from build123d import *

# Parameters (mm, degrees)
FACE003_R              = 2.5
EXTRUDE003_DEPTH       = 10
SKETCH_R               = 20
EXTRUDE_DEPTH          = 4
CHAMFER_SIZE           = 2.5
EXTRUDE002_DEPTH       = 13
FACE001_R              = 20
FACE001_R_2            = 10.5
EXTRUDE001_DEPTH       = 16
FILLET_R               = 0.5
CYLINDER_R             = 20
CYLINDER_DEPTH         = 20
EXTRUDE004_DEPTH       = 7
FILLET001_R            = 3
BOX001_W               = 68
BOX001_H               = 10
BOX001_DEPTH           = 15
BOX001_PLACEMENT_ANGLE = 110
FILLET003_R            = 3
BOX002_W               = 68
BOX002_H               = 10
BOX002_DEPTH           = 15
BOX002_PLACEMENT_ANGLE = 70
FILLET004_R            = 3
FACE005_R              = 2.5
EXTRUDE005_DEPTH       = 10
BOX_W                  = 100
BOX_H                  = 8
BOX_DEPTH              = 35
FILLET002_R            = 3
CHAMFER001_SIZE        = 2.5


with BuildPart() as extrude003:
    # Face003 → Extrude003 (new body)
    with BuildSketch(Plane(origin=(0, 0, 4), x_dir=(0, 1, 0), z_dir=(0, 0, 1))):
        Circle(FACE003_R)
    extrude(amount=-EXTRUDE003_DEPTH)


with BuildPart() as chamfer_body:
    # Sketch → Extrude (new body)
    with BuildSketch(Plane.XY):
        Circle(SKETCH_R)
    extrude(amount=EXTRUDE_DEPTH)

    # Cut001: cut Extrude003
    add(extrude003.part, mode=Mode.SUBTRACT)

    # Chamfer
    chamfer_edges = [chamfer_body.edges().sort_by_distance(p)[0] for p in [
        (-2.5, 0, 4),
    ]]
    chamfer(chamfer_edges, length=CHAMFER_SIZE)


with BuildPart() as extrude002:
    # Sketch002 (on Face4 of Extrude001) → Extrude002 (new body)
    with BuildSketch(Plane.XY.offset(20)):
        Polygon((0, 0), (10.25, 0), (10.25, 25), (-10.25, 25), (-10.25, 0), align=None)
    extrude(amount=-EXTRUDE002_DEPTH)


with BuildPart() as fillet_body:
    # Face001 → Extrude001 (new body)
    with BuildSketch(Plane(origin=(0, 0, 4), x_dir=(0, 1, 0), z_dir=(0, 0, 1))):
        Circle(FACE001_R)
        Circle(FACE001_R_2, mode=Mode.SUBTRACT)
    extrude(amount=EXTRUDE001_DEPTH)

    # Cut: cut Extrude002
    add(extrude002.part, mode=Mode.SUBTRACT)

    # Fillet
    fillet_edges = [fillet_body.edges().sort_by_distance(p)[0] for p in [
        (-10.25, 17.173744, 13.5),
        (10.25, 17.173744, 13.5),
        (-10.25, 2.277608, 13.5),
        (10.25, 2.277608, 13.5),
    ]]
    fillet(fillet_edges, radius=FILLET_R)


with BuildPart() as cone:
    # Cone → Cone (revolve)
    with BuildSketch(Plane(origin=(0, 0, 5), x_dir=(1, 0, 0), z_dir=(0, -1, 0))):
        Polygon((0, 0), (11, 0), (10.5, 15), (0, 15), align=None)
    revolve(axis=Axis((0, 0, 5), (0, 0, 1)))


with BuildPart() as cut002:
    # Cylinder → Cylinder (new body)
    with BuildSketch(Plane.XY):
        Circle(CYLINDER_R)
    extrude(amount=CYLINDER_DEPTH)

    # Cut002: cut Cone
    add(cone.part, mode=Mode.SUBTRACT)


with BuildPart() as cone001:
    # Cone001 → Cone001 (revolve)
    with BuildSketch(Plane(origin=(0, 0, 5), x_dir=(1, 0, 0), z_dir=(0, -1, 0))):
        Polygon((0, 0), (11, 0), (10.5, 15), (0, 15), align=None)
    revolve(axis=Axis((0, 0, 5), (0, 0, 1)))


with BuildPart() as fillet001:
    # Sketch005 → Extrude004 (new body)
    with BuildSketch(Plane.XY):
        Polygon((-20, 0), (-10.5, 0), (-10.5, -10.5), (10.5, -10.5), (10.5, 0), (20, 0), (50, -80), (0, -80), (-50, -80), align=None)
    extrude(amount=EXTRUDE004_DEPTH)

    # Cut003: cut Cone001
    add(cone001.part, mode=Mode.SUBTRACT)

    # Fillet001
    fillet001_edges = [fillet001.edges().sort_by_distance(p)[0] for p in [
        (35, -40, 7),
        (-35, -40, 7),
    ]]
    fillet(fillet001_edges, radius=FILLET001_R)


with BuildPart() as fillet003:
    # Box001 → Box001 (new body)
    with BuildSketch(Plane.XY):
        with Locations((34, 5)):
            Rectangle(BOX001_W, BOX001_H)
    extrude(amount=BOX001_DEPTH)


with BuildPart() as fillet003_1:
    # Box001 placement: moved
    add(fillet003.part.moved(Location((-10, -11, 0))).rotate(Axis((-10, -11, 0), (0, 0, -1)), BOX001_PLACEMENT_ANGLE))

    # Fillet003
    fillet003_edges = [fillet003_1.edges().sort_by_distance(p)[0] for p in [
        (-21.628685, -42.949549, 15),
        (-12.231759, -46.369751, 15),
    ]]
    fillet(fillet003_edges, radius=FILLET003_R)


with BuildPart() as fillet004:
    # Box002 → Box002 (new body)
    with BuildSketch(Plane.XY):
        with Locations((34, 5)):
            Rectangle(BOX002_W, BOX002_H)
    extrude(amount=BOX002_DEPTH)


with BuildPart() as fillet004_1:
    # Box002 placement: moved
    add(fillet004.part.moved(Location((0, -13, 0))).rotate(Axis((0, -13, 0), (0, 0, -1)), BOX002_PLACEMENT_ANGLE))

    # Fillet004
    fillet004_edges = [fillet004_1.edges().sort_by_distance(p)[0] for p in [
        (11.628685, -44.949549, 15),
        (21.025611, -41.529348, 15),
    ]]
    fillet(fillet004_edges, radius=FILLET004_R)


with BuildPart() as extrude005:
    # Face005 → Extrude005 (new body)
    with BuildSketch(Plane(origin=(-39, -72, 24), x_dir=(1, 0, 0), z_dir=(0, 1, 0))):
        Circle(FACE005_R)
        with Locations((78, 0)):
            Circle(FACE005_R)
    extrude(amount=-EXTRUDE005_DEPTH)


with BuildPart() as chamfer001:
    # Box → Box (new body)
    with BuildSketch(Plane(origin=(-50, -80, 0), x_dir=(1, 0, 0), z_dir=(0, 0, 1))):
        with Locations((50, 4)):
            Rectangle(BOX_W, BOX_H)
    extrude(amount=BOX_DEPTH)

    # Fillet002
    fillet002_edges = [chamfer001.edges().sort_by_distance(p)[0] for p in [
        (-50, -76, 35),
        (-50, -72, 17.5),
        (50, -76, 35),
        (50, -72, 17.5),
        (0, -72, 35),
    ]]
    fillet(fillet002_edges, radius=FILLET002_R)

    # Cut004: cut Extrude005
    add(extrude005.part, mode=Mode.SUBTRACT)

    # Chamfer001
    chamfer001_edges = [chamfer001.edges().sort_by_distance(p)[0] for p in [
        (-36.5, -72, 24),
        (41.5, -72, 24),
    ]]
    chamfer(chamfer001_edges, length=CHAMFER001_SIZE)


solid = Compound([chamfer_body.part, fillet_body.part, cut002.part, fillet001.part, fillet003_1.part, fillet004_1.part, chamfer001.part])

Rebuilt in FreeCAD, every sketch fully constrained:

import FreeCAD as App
import Part
import Sketcher
Q = App.Units.Quantity


def edges_at(feature, points):
    """Names of the edges that pass closest to the given points."""
    edges = feature.Shape.Edges
    near = lambda p: min(range(len(edges)), key=lambda i: edges[i].distToShape(Part.Vertex(*p))[0])
    return sorted({f"Edge{near(p) + 1}" for p in points})


def add_polygon(sketch, points):
    """Adds a closed chain of lines whose ends are joined by coincident constraints."""
    first, n = sketch.GeometryCount, len(points)
    for a, b in zip(points, points[1:] + points[:1]):
        sketch.addGeometry(Part.LineSegment(App.Vector(*a, 0), App.Vector(*b, 0)), False)
    for i in range(n):
        sketch.addConstraint(Sketcher.Constraint("Coincident", first + i, 2, first + (i + 1) % n, 1))

doc = App.newDocument("Part")
body = doc.addObject("PartDesign::Body", "Body")

# Sketch on XY plane
sketch1 = body.newObject("Sketcher::SketchObject", "Sketch")
sketch1.AttachmentSupport = (doc.getObject("XY_Plane"), [""])
sketch1.MapMode = "FlatFace"
sketch1.AttachmentOffset = App.Placement(App.Vector(0, 0, 4), App.Rotation())
sketch1.addGeometry(Part.Circle(App.Vector(0, 0, 0), App.Vector(0, 0, 1), 2.5), False)
sketch1.addConstraint([
    Sketcher.Constraint("Coincident", 0, 3, -1, 1),
    Sketcher.Constraint("Diameter", 0, Q("5 mm")),
])
pad1 = body.newObject("PartDesign::Pad", "Pad")
pad1.Profile = sketch1
pad1.Length = 10
pad1.Reversed = True
body2 = doc.addObject("PartDesign::Body", "Body001")

# Sketch on XY plane
sketch2 = body2.newObject("Sketcher::SketchObject", "Sketch001")
sketch2.AttachmentSupport = (doc.getObject("XY_Plane001"), [""])
sketch2.MapMode = "FlatFace"
sketch2.addGeometry(Part.Circle(App.Vector(0, 0, 0), App.Vector(0, 0, 1), 20), False)
sketch2.addConstraint([
    Sketcher.Constraint("Coincident", 0, 3, -1, 1),
    Sketcher.Constraint("Diameter", 0, Q("40 mm")),
])
pad2 = body2.newObject("PartDesign::Pad", "Pad001")
pad2.Profile = sketch2
pad2.Length = 4
doc.recompute()

boolean = body2.newObject("PartDesign::Boolean", "Boolean")
boolean.Type = "Cut"
boolean.addObjects([body])
doc.recompute()

chamfer = body2.newObject("PartDesign::Chamfer", "Chamfer")
chamfer.Base = (boolean, edges_at(boolean, [(0, -2.5, 4)]))
chamfer.Size = 2.5
body3 = doc.addObject("PartDesign::Body", "Body002")

# Sketch on XY plane
sketch3 = body3.newObject("Sketcher::SketchObject", "Sketch002")
sketch3.AttachmentSupport = (doc.getObject("XY_Plane002"), [""])
sketch3.MapMode = "FlatFace"
sketch3.AttachmentOffset = App.Placement(App.Vector(0, 0, 20), App.Rotation())
add_polygon(sketch3, [(10, 0), (10, 25), (-10, 25), (-10, 0)])  # lines 0-3
sketch3.addConstraint([
    Sketcher.Constraint("Vertical", 0),
    Sketcher.Constraint("Horizontal", 1),
    Sketcher.Constraint("Vertical", 2),
    Sketcher.Constraint("Horizontal", 3),
    Sketcher.Constraint("Symmetric", 2, 2, 3, 2, -1, 1),
    Sketcher.Constraint("DistanceY", 0, 1, 0, 2, Q("25 mm")),
    Sketcher.Constraint("DistanceX", 1, 2, 1, 1, Q("20.5 mm")),
])
pad3 = body3.newObject("PartDesign::Pad", "Pad002")
pad3.Profile = sketch3
pad3.Length = 13
pad3.Reversed = True
body4 = doc.addObject("PartDesign::Body", "Body003")

# Sketch on XY plane
sketch4 = body4.newObject("Sketcher::SketchObject", "Sketch003")
sketch4.AttachmentSupport = (doc.getObject("XY_Plane003"), [""])
sketch4.MapMode = "FlatFace"
sketch4.AttachmentOffset = App.Placement(App.Vector(0, 0, 4), App.Rotation())
sketch4.addGeometry([
    Part.Circle(App.Vector(0, 0, 0), App.Vector(0, 0, 1), 20),
    Part.Circle(App.Vector(0, 0, 0), App.Vector(0, 0, 1), 10),
], False)
sketch4.addConstraint([
    Sketcher.Constraint("Coincident", 0, 3, -1, 1),
    Sketcher.Constraint("Coincident", 1, 3, -1, 1),
    Sketcher.Constraint("Diameter", 0, Q("40 mm")),
    Sketcher.Constraint("Diameter", 1, Q("21 mm")),
])
pad4 = body4.newObject("PartDesign::Pad", "Pad003")
pad4.Profile = sketch4
pad4.Length = 16
doc.recompute()

boolean2 = body4.newObject("PartDesign::Boolean", "Boolean001")
boolean2.Type = "Cut"
boolean2.addObjects([body3])
doc.recompute()

fillet = body4.newObject("PartDesign::Fillet", "Fillet")
fillet.Base = (boolean2, edges_at(boolean2, [
    (-10.25, 17.174, 13.5),
    (10.25, 17.174, 13.5),
    (-10.25, 2.278, 13.5),
    (10.25, 2.278, 13.5),
]))
fillet.Radius = 0.5
body5 = doc.addObject("PartDesign::Body", "Body004")

# Sketch on XZ plane
sketch5 = body5.newObject("Sketcher::SketchObject", "Sketch004")
sketch5.AttachmentSupport = (doc.getObject("XZ_Plane004"), [""])
sketch5.MapMode = "FlatFace"
add_polygon(sketch5, [(0, 5), (11, 5), (10, 20), (0, 20)])  # lines 0-3
sketch5.addConstraint([
    Sketcher.Constraint("Horizontal", 0),
    Sketcher.Constraint("Horizontal", 2),
    Sketcher.Constraint("Vertical", 3),
    Sketcher.Constraint("PointOnObject", 2, 2, -2),
    Sketcher.Constraint("DistanceX", 0, 1, 0, 2, Q("11 mm")),
    Sketcher.Constraint("DistanceY", 3, 2, 3, 1, Q("15 mm")),
    Sketcher.Constraint("DistanceX", 2, 2, 2, 1, Q("10.5 mm")),
    Sketcher.Constraint("DistanceY", -1, 1, 0, 2, Q("5 mm")),
])
revolution = body5.newObject("PartDesign::Revolution", "Revolution")
revolution.Profile = sketch5
revolution.ReferenceAxis = (sketch5, ["V_Axis"])
revolution.Angle = 360
body6 = doc.addObject("PartDesign::Body", "Body005")

# Sketch on XY plane
sketch6 = body6.newObject("Sketcher::SketchObject", "Sketch005")
sketch6.AttachmentSupport = (doc.getObject("XY_Plane005"), [""])
sketch6.MapMode = "FlatFace"
sketch6.addGeometry(Part.Circle(App.Vector(0, 0, 0), App.Vector(0, 0, 1), 20), False)
sketch6.addConstraint([
    Sketcher.Constraint("Coincident", 0, 3, -1, 1),
    Sketcher.Constraint("Diameter", 0, Q("40 mm")),
])
pad5 = body6.newObject("PartDesign::Pad", "Pad004")
pad5.Profile = sketch6
pad5.Length = 20
doc.recompute()

boolean3 = body6.newObject("PartDesign::Boolean", "Boolean002")
boolean3.Type = "Cut"
boolean3.addObjects([body5])
body7 = doc.addObject("PartDesign::Body", "Body006")

# Sketch on XZ plane
sketch7 = body7.newObject("Sketcher::SketchObject", "Sketch006")
sketch7.AttachmentSupport = (doc.getObject("XZ_Plane006"), [""])
sketch7.MapMode = "FlatFace"
add_polygon(sketch7, [(0, 5), (11, 5), (10, 20), (0, 20)])  # lines 0-3
sketch7.addConstraint([
    Sketcher.Constraint("Horizontal", 0),
    Sketcher.Constraint("Horizontal", 2),
    Sketcher.Constraint("Vertical", 3),
    Sketcher.Constraint("PointOnObject", 2, 2, -2),
    Sketcher.Constraint("DistanceX", 0, 1, 0, 2, Q("11 mm")),
    Sketcher.Constraint("DistanceY", 3, 2, 3, 1, Q("15 mm")),
    Sketcher.Constraint("DistanceX", 2, 2, 2, 1, Q("10.5 mm")),
    Sketcher.Constraint("DistanceY", -1, 1, 0, 2, Q("5 mm")),
])
revolution2 = body7.newObject("PartDesign::Revolution", "Revolution001")
revolution2.Profile = sketch7
revolution2.ReferenceAxis = (sketch7, ["V_Axis"])
revolution2.Angle = 360
body8 = doc.addObject("PartDesign::Body", "Body007")

# Sketch on XY plane
sketch8 = body8.newObject("Sketcher::SketchObject", "Sketch007")
sketch8.AttachmentSupport = (doc.getObject("XY_Plane007"), [""])
sketch8.MapMode = "FlatFace"
add_polygon(sketch8, [(-10, 0), (-20, 0), (-50, -80), (50, -80), (20, 0), (10, 0), (10, -10), (-10, -10)])  # lines 0-7
sketch8.addConstraint([
    Sketcher.Constraint("Horizontal", 0),
    Sketcher.Constraint("Horizontal", 2),
    Sketcher.Constraint("Horizontal", 4),
    Sketcher.Constraint("Vertical", 5),
    Sketcher.Constraint("Horizontal", 6),
    Sketcher.Constraint("Vertical", 7),
    Sketcher.Constraint("Symmetric", 0, 2, 3, 2, -1, 1),
    Sketcher.Constraint("Symmetric", 4, 2, 7, 2, -2),
    Sketcher.Constraint("Equal", 1, 3),
    Sketcher.Constraint("DistanceX", 2, 1, 2, 2, Q("100 mm")),
    Sketcher.Constraint("DistanceX", 6, 2, 6, 1, Q("21 mm")),
    Sketcher.Constraint("DistanceX", 0, 2, 0, 1, Q("9.5 mm")),
    Sketcher.Constraint("DistanceY", 5, 2, 5, 1, Q("10.5 mm")),
    Sketcher.Constraint("DistanceY", 1, 2, -1, 1, Q("80 mm")),
])
pad6 = body8.newObject("PartDesign::Pad", "Pad005")
pad6.Profile = sketch8
pad6.Length = 7
doc.recompute()

boolean4 = body8.newObject("PartDesign::Boolean", "Boolean003")
boolean4.Type = "Cut"
boolean4.addObjects([body7])
doc.recompute()

fillet2 = body8.newObject("PartDesign::Fillet", "Fillet001")
fillet2.Base = (boolean4, edges_at(boolean4, [(35, -40, 7), (-35, -40, 7)]))
fillet2.Radius = 3
body9 = doc.addObject("PartDesign::Body", "Body008")

# Sketch on XY plane
sketch9 = body9.newObject("Sketcher::SketchObject", "Sketch008")
sketch9.AttachmentSupport = (doc.getObject("XY_Plane008"), [""])
sketch9.MapMode = "FlatFace"
add_polygon(sketch9, [(0, 10), (0, 0), (68, 0), (68, 10)])  # lines 0-3
sketch9.addConstraint([
    Sketcher.Constraint("Vertical", 0),
    Sketcher.Constraint("Horizontal", 1),
    Sketcher.Constraint("Vertical", 2),
    Sketcher.Constraint("Horizontal", 3),
    Sketcher.Constraint("Coincident", 0, 2, -1, 1),
    Sketcher.Constraint("DistanceX", 1, 1, 1, 2, Q("68 mm")),
    Sketcher.Constraint("DistanceY", 0, 2, 0, 1, Q("10 mm")),
])
pad7 = body9.newObject("PartDesign::Pad", "Pad006")
pad7.Profile = sketch9
pad7.Length = 15
body10 = doc.addObject("PartDesign::Body", "Body009")
doc.recompute()

body9.Placement = App.Placement(App.Vector(-10, -11, 0), App.Rotation(App.Vector(0, 0, -1), 110))
boolean5 = body10.newObject("PartDesign::Boolean", "Boolean004")
boolean5.Type = "Fuse"
boolean5.addObjects([body9])
doc.recompute()

fillet3 = body10.newObject("PartDesign::Fillet", "Fillet002")
fillet3.Base = (boolean5, edges_at(boolean5, [(-21.629, -42.95, 15), (-12.232, -46.37, 15)]))
fillet3.Radius = 3
body11 = doc.addObject("PartDesign::Body", "Body010")

# Sketch on XY plane
sketch10 = body11.newObject("Sketcher::SketchObject", "Sketch009")
sketch10.AttachmentSupport = (doc.getObject("XY_Plane010"), [""])
sketch10.MapMode = "FlatFace"
add_polygon(sketch10, [(0, 10), (0, 0), (68, 0), (68, 10)])  # lines 0-3
sketch10.addConstraint([
    Sketcher.Constraint("Vertical", 0),
    Sketcher.Constraint("Horizontal", 1),
    Sketcher.Constraint("Vertical", 2),
    Sketcher.Constraint("Horizontal", 3),
    Sketcher.Constraint("Coincident", 0, 2, -1, 1),
    Sketcher.Constraint("DistanceX", 1, 1, 1, 2, Q("68 mm")),
    Sketcher.Constraint("DistanceY", 0, 2, 0, 1, Q("10 mm")),
])
pad8 = body11.newObject("PartDesign::Pad", "Pad007")
pad8.Profile = sketch10
pad8.Length = 15
body12 = doc.addObject("PartDesign::Body", "Body011")
doc.recompute()

body11.Placement = App.Placement(App.Vector(0, -13, 0), App.Rotation(App.Vector(0, 0, -1), 70))
boolean6 = body12.newObject("PartDesign::Boolean", "Boolean005")
boolean6.Type = "Fuse"
boolean6.addObjects([body11])
doc.recompute()

fillet4 = body12.newObject("PartDesign::Fillet", "Fillet003")
fillet4.Base = (boolean6, edges_at(boolean6, [(11.629, -44.95, 15), (21.026, -41.529, 15)]))
fillet4.Radius = 3
body13 = doc.addObject("PartDesign::Body", "Body012")
body13.AllowCompound = True

# Sketch on XZ plane
sketch11 = body13.newObject("Sketcher::SketchObject", "Sketch010")
sketch11.AttachmentSupport = (doc.getObject("XZ_Plane012"), [""])
sketch11.MapMode = "FlatFace"
sketch11.AttachmentOffset = App.Placement(App.Vector(0, 0, 72), App.Rotation())
sketch11.addGeometry([
    Part.Circle(App.Vector(-39, 24, 0), App.Vector(0, 0, 1), 2.5),
    Part.Circle(App.Vector(39, 24, 0), App.Vector(0, 0, 1), 2.5),
], False)
sketch11.addConstraint([
    Sketcher.Constraint("Equal", 0, 1),
    Sketcher.Constraint("Symmetric", 0, 3, 1, 3, -2),
    Sketcher.Constraint("Diameter", 0, Q("5 mm")),
    Sketcher.Constraint("DistanceX", 0, 3, -1, 1, Q("39 mm")),
    Sketcher.Constraint("DistanceY", -1, 1, 0, 3, Q("24 mm")),
])
pad9 = body13.newObject("PartDesign::Pad", "Pad008")
pad9.Profile = sketch11
pad9.Length = 10
body14 = doc.addObject("PartDesign::Body", "Body013")

# Sketch on XY plane
sketch12 = body14.newObject("Sketcher::SketchObject", "Sketch011")
sketch12.AttachmentSupport = (doc.getObject("XY_Plane013"), [""])
sketch12.MapMode = "FlatFace"
add_polygon(sketch12, [(-50, -72), (-50, -80), (50, -80), (50, -72)])  # lines 0-3
sketch12.addConstraint([
    Sketcher.Constraint("Vertical", 0),
    Sketcher.Constraint("Horizontal", 1),
    Sketcher.Constraint("Vertical", 2),
    Sketcher.Constraint("Horizontal", 3),
    Sketcher.Constraint("DistanceX", 1, 1, 1, 2, Q("100 mm")),
    Sketcher.Constraint("DistanceY", 0, 2, 0, 1, Q("8 mm")),
    Sketcher.Constraint("DistanceX", 0, 2, -1, 1, Q("50 mm")),
    Sketcher.Constraint("DistanceY", 0, 2, -1, 1, Q("80 mm")),
])
pad10 = body14.newObject("PartDesign::Pad", "Pad009")
pad10.Profile = sketch12
pad10.Length = 35
doc.recompute()

fillet5 = body14.newObject("PartDesign::Fillet", "Fillet004")
fillet5.Base = (pad10, edges_at(pad10, [
    (-50, -76, 35),
    (-50, -72, 17.5),
    (50, -76, 35),
    (50, -72, 17.5),
    (0, -72, 35),
]))
fillet5.Radius = 3
doc.recompute()

boolean7 = body14.newObject("PartDesign::Boolean", "Boolean006")
boolean7.Type = "Cut"
boolean7.addObjects([body13])
doc.recompute()

chamfer2 = body14.newObject("PartDesign::Chamfer", "Chamfer001")
chamfer2.Base = (boolean7, edges_at(boolean7, [(-41.5, -72, 24), (36.5, -72, 24)]))
chamfer2.Size = 2.5

doc.recompute()
